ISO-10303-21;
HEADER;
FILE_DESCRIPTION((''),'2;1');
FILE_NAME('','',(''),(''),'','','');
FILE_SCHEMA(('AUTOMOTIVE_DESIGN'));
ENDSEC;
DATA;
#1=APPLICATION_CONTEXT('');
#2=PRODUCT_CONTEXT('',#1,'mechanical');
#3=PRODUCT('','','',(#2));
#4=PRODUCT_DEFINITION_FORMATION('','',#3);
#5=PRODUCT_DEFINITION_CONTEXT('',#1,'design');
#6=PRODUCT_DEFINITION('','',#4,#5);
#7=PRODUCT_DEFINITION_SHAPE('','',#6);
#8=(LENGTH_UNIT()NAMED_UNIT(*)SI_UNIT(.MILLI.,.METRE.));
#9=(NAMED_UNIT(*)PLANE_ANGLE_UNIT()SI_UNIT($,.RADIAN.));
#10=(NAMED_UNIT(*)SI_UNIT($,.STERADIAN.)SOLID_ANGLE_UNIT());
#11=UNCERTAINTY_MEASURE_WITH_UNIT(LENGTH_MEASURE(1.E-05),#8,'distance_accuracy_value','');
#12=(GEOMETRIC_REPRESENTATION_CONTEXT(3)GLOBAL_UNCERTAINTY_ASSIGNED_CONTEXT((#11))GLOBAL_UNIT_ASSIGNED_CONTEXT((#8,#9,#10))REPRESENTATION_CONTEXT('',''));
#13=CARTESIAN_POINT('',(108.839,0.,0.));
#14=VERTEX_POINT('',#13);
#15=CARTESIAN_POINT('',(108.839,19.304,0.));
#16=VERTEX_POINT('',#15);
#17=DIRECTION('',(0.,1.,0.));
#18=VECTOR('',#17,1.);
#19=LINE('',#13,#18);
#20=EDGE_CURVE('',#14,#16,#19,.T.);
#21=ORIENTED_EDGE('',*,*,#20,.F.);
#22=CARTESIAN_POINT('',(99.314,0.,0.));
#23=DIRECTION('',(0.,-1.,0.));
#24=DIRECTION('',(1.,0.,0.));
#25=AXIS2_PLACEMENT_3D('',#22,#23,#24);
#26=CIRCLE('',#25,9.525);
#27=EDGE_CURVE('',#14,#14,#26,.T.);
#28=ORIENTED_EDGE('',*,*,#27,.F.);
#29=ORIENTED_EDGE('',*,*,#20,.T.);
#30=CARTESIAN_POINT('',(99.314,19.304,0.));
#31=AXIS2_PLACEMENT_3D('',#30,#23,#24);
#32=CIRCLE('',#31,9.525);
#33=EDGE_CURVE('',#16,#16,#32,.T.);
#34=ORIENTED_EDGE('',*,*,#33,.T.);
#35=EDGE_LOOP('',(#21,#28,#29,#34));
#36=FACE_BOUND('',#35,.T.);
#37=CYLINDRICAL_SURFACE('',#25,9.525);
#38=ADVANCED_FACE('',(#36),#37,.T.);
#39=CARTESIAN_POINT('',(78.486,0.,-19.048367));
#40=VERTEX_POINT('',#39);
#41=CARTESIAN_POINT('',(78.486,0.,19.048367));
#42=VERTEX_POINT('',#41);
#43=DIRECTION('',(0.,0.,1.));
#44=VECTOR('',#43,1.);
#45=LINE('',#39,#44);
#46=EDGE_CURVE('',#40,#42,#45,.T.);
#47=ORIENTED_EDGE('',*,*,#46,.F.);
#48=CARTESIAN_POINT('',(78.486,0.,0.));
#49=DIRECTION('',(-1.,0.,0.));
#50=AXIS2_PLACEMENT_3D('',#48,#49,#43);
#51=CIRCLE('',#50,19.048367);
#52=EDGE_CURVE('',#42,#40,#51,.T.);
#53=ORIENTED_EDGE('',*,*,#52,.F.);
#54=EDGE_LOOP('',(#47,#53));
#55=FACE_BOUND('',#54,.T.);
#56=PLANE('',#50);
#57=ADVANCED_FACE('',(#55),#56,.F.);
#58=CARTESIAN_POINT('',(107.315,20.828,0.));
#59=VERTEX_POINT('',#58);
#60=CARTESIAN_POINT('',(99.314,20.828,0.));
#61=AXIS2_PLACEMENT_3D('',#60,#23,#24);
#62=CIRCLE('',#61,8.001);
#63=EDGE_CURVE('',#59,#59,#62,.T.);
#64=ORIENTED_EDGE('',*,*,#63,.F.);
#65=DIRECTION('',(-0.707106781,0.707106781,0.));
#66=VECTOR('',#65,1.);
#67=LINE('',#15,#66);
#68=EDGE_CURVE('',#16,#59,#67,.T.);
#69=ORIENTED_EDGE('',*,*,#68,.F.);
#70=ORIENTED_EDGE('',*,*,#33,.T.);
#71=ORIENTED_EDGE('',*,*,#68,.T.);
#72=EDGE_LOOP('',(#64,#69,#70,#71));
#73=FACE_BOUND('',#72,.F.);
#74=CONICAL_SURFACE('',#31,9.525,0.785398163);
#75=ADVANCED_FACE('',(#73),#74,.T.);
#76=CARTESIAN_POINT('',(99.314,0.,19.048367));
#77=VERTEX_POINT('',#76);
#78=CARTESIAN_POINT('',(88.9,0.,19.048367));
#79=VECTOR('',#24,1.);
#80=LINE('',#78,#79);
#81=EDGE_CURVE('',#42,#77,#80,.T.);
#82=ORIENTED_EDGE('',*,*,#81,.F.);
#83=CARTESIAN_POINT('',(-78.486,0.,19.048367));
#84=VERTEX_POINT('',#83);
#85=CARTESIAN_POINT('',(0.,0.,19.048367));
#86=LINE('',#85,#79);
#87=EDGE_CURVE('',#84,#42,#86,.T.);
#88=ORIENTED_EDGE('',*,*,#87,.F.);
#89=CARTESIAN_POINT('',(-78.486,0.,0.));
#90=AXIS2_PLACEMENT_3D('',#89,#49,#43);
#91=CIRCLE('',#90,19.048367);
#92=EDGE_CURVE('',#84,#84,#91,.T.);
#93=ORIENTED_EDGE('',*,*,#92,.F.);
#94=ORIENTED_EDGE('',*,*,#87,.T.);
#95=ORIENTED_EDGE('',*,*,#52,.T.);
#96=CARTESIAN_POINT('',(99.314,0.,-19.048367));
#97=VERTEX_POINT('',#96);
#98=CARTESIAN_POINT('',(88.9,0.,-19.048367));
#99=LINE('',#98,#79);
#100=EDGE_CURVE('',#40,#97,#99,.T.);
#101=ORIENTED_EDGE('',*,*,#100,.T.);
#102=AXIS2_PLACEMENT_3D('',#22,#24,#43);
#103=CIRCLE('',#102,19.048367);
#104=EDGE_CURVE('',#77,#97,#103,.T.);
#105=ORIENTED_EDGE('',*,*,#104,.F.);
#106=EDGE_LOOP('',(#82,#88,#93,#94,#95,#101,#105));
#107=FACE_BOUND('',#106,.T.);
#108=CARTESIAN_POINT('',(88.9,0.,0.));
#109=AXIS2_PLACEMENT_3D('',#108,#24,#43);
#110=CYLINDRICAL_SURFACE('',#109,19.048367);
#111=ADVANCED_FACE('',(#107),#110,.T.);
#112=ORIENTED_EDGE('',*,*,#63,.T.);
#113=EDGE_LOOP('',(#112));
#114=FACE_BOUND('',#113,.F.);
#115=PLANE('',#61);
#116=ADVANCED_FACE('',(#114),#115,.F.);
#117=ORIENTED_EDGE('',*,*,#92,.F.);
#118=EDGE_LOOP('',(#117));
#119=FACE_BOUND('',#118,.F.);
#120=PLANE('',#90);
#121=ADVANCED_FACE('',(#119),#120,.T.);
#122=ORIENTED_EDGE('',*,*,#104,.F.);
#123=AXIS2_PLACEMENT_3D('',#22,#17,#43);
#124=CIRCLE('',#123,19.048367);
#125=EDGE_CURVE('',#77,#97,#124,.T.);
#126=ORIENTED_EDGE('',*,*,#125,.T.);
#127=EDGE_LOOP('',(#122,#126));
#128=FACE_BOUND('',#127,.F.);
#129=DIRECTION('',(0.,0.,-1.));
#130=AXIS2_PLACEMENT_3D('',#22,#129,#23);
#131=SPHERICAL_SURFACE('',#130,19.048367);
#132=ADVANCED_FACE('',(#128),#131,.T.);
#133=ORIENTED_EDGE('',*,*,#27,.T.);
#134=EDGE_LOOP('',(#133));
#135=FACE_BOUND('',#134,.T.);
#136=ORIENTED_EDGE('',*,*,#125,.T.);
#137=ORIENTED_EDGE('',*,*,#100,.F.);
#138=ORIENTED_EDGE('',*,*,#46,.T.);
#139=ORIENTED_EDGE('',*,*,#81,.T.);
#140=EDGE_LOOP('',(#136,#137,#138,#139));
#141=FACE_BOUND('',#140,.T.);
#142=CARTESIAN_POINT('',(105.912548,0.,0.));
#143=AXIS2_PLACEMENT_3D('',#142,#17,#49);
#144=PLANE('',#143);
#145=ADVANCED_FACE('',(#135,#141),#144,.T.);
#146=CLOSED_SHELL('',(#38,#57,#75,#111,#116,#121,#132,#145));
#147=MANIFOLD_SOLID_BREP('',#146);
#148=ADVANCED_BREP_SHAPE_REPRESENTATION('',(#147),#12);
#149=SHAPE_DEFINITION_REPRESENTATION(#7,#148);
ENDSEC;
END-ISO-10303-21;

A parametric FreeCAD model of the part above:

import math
import FreeCAD as App
import Part
import Sketcher
Q = App.Units.Quantity


def edges_at(feature, points):
    """Names of the edges that pass closest to the given points."""
    edges = feature.Shape.Edges
    near = lambda p: min(range(len(edges)), key=lambda i: edges[i].distToShape(Part.Vertex(*p))[0])
    return sorted({f"Edge{near(p) + 1}" for p in points})


def add_polygon(sketch, points):
    """Adds a closed chain of lines whose ends are joined by coincident constraints."""
    first, n = sketch.GeometryCount, len(points)
    for a, b in zip(points, points[1:] + points[:1]):
        sketch.addGeometry(Part.LineSegment(App.Vector(*a, 0), App.Vector(*b, 0)), False)
    for i in range(n):
        sketch.addConstraint(Sketcher.Constraint("Coincident", first + i, 2, first + (i + 1) % n, 1))

doc = App.newDocument("Part")
params = doc.addObject("Spreadsheet::Sheet", "Params")
for row, (alias, value) in enumerate([
    ("sketch1_width", "6.18 in"),
    ("revolution_angle", "360 deg"),
    ("sketch2_width", "0.82 in"),
    ("revolution2_angle", "180 deg"),
    ("revolution3_angle", "90 deg"),
    ("sketch4_diameter", "0.75 in"),
    ("pad1_length", "0.82 in"),
    ("chamfer_size", "0.06 in"),
    ("chamfer_size2", "0.06 in"),
], start=1):
    params.set(f"A{row}", alias)
    params.set(f"B{row}", "=" + value)
    params.setAlias(f"B{row}", alias)

body = doc.addObject("PartDesign::Body", "Body")

# Sketch on XZ plane
sketch1 = body.newObject("Sketcher::SketchObject", "Sketch")
sketch1.AttachmentSupport = (doc.getObject("XZ_Plane"), [""])
sketch1.MapMode = "FlatFace"
add_polygon(sketch1, [(-78, 19), (-78, 0), (78, 0), (78, 19)])  # lines 0-3
sketch1.addConstraint(Sketcher.Constraint("Vertical", 0))
sketch1.addConstraint(Sketcher.Constraint("Horizontal", 1))
sketch1.addConstraint(Sketcher.Constraint("Vertical", 2))
sketch1.addConstraint(Sketcher.Constraint("Horizontal", 3))
sketch1.addConstraint(Sketcher.Constraint("Symmetric", 0, 2, 1, 2, -1, 1))
sketch1.addConstraint(Sketcher.Constraint("DistanceX", 1, 1, 1, 2, Q("6.18 in")))
sketch1.addConstraint(Sketcher.Constraint("DistanceY", 0, 2, 0, 1, 19.048367))
sketch1.setExpression("Constraints[9]", "Params.sketch1_width")
revolution = body.newObject("PartDesign::Revolution", "Revolution")
revolution.Profile = sketch1
revolution.ReferenceAxis = (sketch1, ["H_Axis"])
revolution.setExpression("Angle", "Params.revolution_angle")

# Sketch on XZ plane
sketch2 = body.newObject("Sketcher::SketchObject", "Sketch001")
sketch2.AttachmentSupport = (doc.getObject("XZ_Plane"), [""])
sketch2.MapMode = "FlatFace"
add_polygon(sketch2, [(78, 19), (78, 0), (99, 0), (99, 19)])  # lines 0-3
sketch2.addConstraint(Sketcher.Constraint("Vertical", 0))
sketch2.addConstraint(Sketcher.Constraint("Horizontal", 1))
sketch2.addConstraint(Sketcher.Constraint("Vertical", 2))
sketch2.addConstraint(Sketcher.Constraint("Horizontal", 3))
sketch2.addConstraint(Sketcher.Constraint("PointOnObject", 0, 2, -1))
sketch2.addConstraint(Sketcher.Constraint("DistanceX", 1, 1, 1, 2, Q("0.82 in")))
sketch2.addConstraint(Sketcher.Constraint("DistanceX", -1, 1, 0, 2, Q("3.09 in")))
sketch2.addConstraint(Sketcher.Constraint("DistanceY", 0, 2, 0, 1, 19.048367))
sketch2.setExpression("Constraints[9]", "Params.sketch2_width")
revolution2 = body.newObject("PartDesign::Revolution", "Revolution001")
revolution2.Profile = sketch2
revolution2.ReferenceAxis = (sketch2, ["H_Axis"])
revolution2.setExpression("Angle", "Params.revolution2_angle")

# Sketch on YZ plane
sketch3 = body.newObject("Sketcher::SketchObject", "Sketch002")
sketch3.AttachmentSupport = (doc.getObject("YZ_Plane"), [""])
sketch3.MapMode = "FlatFace"
sketch3.AttachmentOffset = App.Placement(App.Vector(0, 0, 3.91 * 25.4), App.Rotation())
sketch3.addGeometry(Part.ArcOfCircle(Part.Circle(App.Vector(0, 0, 0), App.Vector(0, 0, 1), 19), math.radians(90), math.radians(270)), False)
sketch3.addGeometry(Part.LineSegment(App.Vector(0, -19, 0), App.Vector(0, 19, 0)), False)
sketch3.addConstraint(Sketcher.Constraint("Coincident", 0, 1, 1, 2))
sketch3.addConstraint(Sketcher.Constraint("Coincident", 1, 1, 0, 2))
sketch3.addConstraint(Sketcher.Constraint("Vertical", 1))
sketch3.addConstraint(Sketcher.Constraint("Coincident", 0, 3, -1, 1))
sketch3.addConstraint(Sketcher.Constraint("PointOnObject", 0, 1, -2))
sketch3.addConstraint(Sketcher.Constraint("Radius", 0, 19.048367))
revolution3 = body.newObject("PartDesign::Revolution", "Revolution002")
revolution3.Profile = sketch3
revolution3.ReferenceAxis = (sketch3, ["V_Axis"])
revolution3.setExpression("Angle", "Params.revolution3_angle")

# Sketch on XZ plane
sketch4 = body.newObject("Sketcher::SketchObject", "Sketch003")
sketch4.AttachmentSupport = (doc.getObject("XZ_Plane"), [""])
sketch4.MapMode = "FlatFace"
sketch4.addGeometry(Part.Circle(App.Vector(99, 0, 0), App.Vector(0, 0, 1), 10), False)
sketch4.addConstraint(Sketcher.Constraint("PointOnObject", 0, 3, -1))
sketch4.addConstraint(Sketcher.Constraint("Diameter", 0, Q("0.75 in")))
sketch4.addConstraint(Sketcher.Constraint("DistanceX", -1, 1, 0, 3, Q("3.91 in")))
sketch4.setExpression("Constraints[1]", "Params.sketch4_diameter")
pad1 = body.newObject("PartDesign::Pad", "Pad")
pad1.Profile = sketch4
pad1.setExpression("Length", "Params.pad1_length")
pad1.Reversed = True
doc.recompute()

chamfer = body.newObject("PartDesign::Chamfer", "Chamfer")
chamfer.Base = (pad1, edges_at(pad1, [(89.789, 20.828, 0)]))
chamfer.ChamferType = "Two distances"
chamfer.setExpression("Size", "Params.chamfer_size")
chamfer.setExpression("Size2", "Params.chamfer_size2")

doc.recompute()
